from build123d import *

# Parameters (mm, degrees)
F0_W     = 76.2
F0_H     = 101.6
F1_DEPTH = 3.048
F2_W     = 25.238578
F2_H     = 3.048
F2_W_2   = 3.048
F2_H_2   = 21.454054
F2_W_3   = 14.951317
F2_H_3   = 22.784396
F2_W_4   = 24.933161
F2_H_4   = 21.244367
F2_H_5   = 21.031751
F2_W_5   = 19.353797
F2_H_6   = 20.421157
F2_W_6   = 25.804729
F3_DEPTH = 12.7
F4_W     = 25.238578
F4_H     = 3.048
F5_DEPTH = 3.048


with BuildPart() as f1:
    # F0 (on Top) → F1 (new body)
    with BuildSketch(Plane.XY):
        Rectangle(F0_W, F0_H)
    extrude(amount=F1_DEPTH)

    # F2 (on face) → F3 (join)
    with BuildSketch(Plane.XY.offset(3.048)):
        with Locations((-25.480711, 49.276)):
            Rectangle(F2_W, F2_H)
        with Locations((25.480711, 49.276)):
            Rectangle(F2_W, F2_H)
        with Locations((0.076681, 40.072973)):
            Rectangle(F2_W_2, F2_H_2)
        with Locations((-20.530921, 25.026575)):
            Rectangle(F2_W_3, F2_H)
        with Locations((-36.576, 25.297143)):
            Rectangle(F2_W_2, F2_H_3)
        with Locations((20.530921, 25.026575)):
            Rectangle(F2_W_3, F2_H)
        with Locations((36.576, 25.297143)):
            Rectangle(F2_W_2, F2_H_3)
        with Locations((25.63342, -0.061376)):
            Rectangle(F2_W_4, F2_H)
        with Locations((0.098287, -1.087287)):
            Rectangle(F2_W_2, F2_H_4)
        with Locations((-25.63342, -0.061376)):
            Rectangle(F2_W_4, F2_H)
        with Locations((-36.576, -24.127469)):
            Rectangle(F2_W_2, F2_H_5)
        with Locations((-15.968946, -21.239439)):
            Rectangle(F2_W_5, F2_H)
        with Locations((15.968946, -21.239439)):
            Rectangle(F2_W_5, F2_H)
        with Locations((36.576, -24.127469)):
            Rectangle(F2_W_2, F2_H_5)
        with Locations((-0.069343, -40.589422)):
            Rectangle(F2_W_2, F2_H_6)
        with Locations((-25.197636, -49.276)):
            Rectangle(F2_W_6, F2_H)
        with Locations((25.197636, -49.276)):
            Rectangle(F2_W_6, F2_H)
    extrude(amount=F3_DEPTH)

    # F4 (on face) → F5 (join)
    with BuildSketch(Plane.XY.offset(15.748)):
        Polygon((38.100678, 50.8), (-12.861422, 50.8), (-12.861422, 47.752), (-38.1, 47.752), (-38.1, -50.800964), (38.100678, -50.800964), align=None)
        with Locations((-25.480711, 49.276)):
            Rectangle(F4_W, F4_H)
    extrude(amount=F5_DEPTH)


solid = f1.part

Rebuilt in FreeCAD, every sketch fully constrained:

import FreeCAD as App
import Part
import Sketcher
from FreeCAD import Vector
Q = App.Units.Quantity


def add_polygon(sketch, points):
    """Adds a closed chain of lines whose ends are joined by coincident constraints."""
    first, n = sketch.GeometryCount, len(points)
    for a, b in zip(points, points[1:] + points[:1]):
        sketch.addGeometry(Part.LineSegment(App.Vector(*a, 0), App.Vector(*b, 0)), False)
    for i in range(n):
        sketch.addConstraint(Sketcher.Constraint("Coincident", first + i, 2, first + (i + 1) % n, 1))

doc = App.newDocument("Part")
body = doc.addObject("PartDesign::Body", "Body")

# Sketch on XY plane
sketch1 = doc.addObject("Sketcher::SketchObject", "Sketch")
body.addObject(sketch1)
sketch1.AttachmentSupport = (doc.XY_Plane, [""])
sketch1.MapMode = "FlatFace"
add_polygon(sketch1, [(-38, 51), (-38, -51), (38, -51), (38, 51)])  # lines 0-3
sketch1.addConstraint([
    Sketcher.Constraint("Vertical", 0),
    Sketcher.Constraint("Horizontal", 1),
    Sketcher.Constraint("Vertical", 2),
    Sketcher.Constraint("Horizontal", 3),
    Sketcher.Constraint("Symmetric", 0, 2, 2, 2, -1, 1),
    Sketcher.Constraint("DistanceX", 1, 1, 1, 2, Q("3 in")),
    Sketcher.Constraint("DistanceY", 0, 2, 0, 1, Q("4 in")),
])
pad1 = doc.addObject("PartDesign::Pad", "Pad")
body.addObject(pad1)
pad1.Profile = sketch1
pad1.Length = Q("0.12 in")

# Sketch on XY plane
sketch2 = doc.addObject("Sketcher::SketchObject", "Sketch001")
body.addObject(sketch2)
sketch2.AttachmentSupport = (doc.XY_Plane, [""])
sketch2.MapMode = "FlatFace"
sketch2.AttachmentOffset = App.Placement(Vector(0, 0, 0.12 * 25.4), App.Rotation())
add_polygon(sketch2, [(-38.1, 50.8), (-38.1, 47.8), (-12.9, 47.8), (-12.9, 50.8)])  # lines 0-3
add_polygon(sketch2, [(12.9, 50.8), (12.9, 47.8), (38.1, 47.8), (38.1, 50.8)])  # lines 4-7
add_polygon(sketch2, [(-1.4, 50.8), (-1.4, 29.3), (1.6, 29.3), (1.6, 50.8)])  # lines 8-11
add_polygon(sketch2, [(-28, 26.6), (-28, 23.5), (-13.1, 23.5), (-13.1, 26.6)])  # lines 12-15
add_polygon(sketch2, [(-38.1, 36.7), (-38.1, 13.9), (-35.1, 13.9), (-35.1, 36.7)])  # lines 16-19
add_polygon(sketch2, [(13.1, 26.6), (13.1, 23.5), (28, 23.5), (28, 26.6)])  # lines 20-23
add_polygon(sketch2, [(35.1, 36.7), (35.1, 13.9), (38.1, 13.9), (38.1, 36.7)])  # lines 24-27
add_polygon(sketch2, [(13.2, 1.5), (13.2, -1.6), (38.1, -1.6), (38.1, 1.5)])  # lines 28-31
add_polygon(sketch2, [(-1.4, 9.5), (-1.4, -11.7), (1.6, -11.7), (1.6, 9.5)])  # lines 32-35
add_polygon(sketch2, [(-38.1, 1.5), (-38.1, -1.6), (-13.2, -1.6), (-13.2, 1.5)])  # lines 36-39
add_polygon(sketch2, [(-38.1, -13.6), (-38.1, -34.6), (-35.1, -34.6), (-35.1, -13.6)])  # lines 40-43
add_polygon(sketch2, [(-25.6, -19.7), (-25.6, -22.8), (-6.3, -22.8), (-6.3, -19.7)])  # lines 44-47
add_polygon(sketch2, [(6.3, -19.7), (6.3, -22.8), (25.6, -22.8), (25.6, -19.7)])  # lines 48-51
add_polygon(sketch2, [(35.1, -13.6), (35.1, -34.6), (38.1, -34.6), (38.1, -13.6)])  # lines 52-55
add_polygon(sketch2, [(-1.6, -30.4), (-1.6, -50.8), (1.5, -50.8), (1.5, -30.4)])  # lines 56-59
add_polygon(sketch2, [(-38.1, -47.8), (-38.1, -50.8), (-12.3, -50.8), (-12.3, -47.8)])  # lines 60-63
add_polygon(sketch2, [(12.3, -47.8), (12.3, -50.8), (38.1, -50.8), (38.1, -47.8)])  # lines 64-67
sketch2.addConstraint([
    Sketcher.Constraint("Vertical", 0),
    Sketcher.Constraint("Horizontal", 1),
    Sketcher.Constraint("Vertical", 2),
    Sketcher.Constraint("Horizontal", 3),
    Sketcher.Constraint("Vertical", 4),
    Sketcher.Constraint("Horizontal", 5),
    Sketcher.Constraint("Vertical", 6),
    Sketcher.Constraint("Horizontal", 7),
    Sketcher.Constraint("Vertical", 8),
    Sketcher.Constraint("Horizontal", 9),
    Sketcher.Constraint("Vertical", 10),
    Sketcher.Constraint("Horizontal", 11),
    Sketcher.Constraint("Vertical", 12),
    Sketcher.Constraint("Horizontal", 13),
    Sketcher.Constraint("Vertical", 14),
    Sketcher.Constraint("Horizontal", 15),
    Sketcher.Constraint("Vertical", 16),
    Sketcher.Constraint("Horizontal", 17),
    Sketcher.Constraint("Vertical", 18),
    Sketcher.Constraint("Horizontal", 19),
    Sketcher.Constraint("Vertical", 20),
    Sketcher.Constraint("Horizontal", 21),
    Sketcher.Constraint("Vertical", 22),
    Sketcher.Constraint("Horizontal", 23),
    Sketcher.Constraint("Vertical", 24),
    Sketcher.Constraint("Horizontal", 25),
    Sketcher.Constraint("Vertical", 26),
    Sketcher.Constraint("Horizontal", 27),
    Sketcher.Constraint("Vertical", 28),
    Sketcher.Constraint("Horizontal", 29),
    Sketcher.Constraint("Vertical", 30),
    Sketcher.Constraint("Horizontal", 31),
    Sketcher.Constraint("Vertical", 32),
    Sketcher.Constraint("Horizontal", 33),
    Sketcher.Constraint("Vertical", 34),
    Sketcher.Constraint("Horizontal", 35),
    Sketcher.Constraint("Vertical", 36),
    Sketcher.Constraint("Horizontal", 37),
    Sketcher.Constraint("Vertical", 38),
    Sketcher.Constraint("Horizontal", 39),
    Sketcher.Constraint("Vertical", 40),
    Sketcher.Constraint("Horizontal", 41),
    Sketcher.Constraint("Vertical", 42),
    Sketcher.Constraint("Horizontal", 43),
    Sketcher.Constraint("Vertical", 44),
    Sketcher.Constraint("Horizontal", 45),
    Sketcher.Constraint("Vertical", 46),
    Sketcher.Constraint("Horizontal", 47),
    Sketcher.Constraint("Vertical", 48),
    Sketcher.Constraint("Horizontal", 49),
    Sketcher.Constraint("Vertical", 50),
    Sketcher.Constraint("Horizontal", 51),
    Sketcher.Constraint("Vertical", 52),
    Sketcher.Constraint("Horizontal", 53),
    Sketcher.Constraint("Vertical", 54),
    Sketcher.Constraint("Horizontal", 55),
    Sketcher.Constraint("Vertical", 56),
    Sketcher.Constraint("Horizontal", 57),
    Sketcher.Constraint("Vertical", 58),
    Sketcher.Constraint("Horizontal", 59),
    Sketcher.Constraint("Vertical", 60),
    Sketcher.Constraint("Horizontal", 61),
    Sketcher.Constraint("Vertical", 62),
    Sketcher.Constraint("Horizontal", 63),
    Sketcher.Constraint("Vertical", 64),
    Sketcher.Constraint("Horizontal", 65),
    Sketcher.Constraint("Vertical", 66),
    Sketcher.Constraint("Horizontal", 67),
    Sketcher.Constraint("Symmetric", 6, 2, 60, 2, -1, 1),
    Sketcher.Constraint("Symmetric", 3, 2, 65, 2, -1, 1),
    Sketcher.Constraint("Symmetric", 1, 2, 4, 2, -2),
    Sketcher.Constraint("Symmetric", 3, 2, 6, 2, -2),
    Sketcher.Constraint("Symmetric", 13, 2, 20, 2, -2),
    Sketcher.Constraint("Symmetric", 15, 2, 22, 2, -2),
    Sketcher.Constraint("Symmetric", 17, 2, 24, 2, -2),
    Sketcher.Constraint("Symmetric", 19, 2, 26, 2, -2),
    Sketcher.Constraint("Symmetric", 29, 2, 36, 2, -2),
    Sketcher.Constraint("Symmetric", 31, 2, 38, 2, -2),
    Sketcher.Constraint("Symmetric", 45, 2, 48, 2, -2),
    Sketcher.Constraint("Symmetric", 47, 2, 50, 2, -2),
    Sketcher.Constraint("Symmetric", 41, 2, 52, 2, -2),
    Sketcher.Constraint("Symmetric", 43, 2, 54, 2, -2),
    Sketcher.Constraint("Symmetric", 62, 2, 67, 2, -2),
    Sketcher.Constraint("Horizontal", 7, 2, 10, 2),
    Sketcher.Constraint("Horizontal", 57, 2, 60, 2),
    Sketcher.Constraint("Vertical", 3, 2, 16, 2),
    Sketcher.Constraint("Vertical", 26, 2, 29, 2),
    Sketcher.Constraint("Vertical", 39, 2, 40, 2),
    Sketcher.Constraint("Vertical", 18, 2, 41, 2),
    Sketcher.Constraint("Equal", 11, 17),
    Sketcher.Constraint("Equal", 27, 33),
    Sketcher.Constraint("Equal", 55, 57),
    Sketcher.Constraint("Equal", 59, 0),
    Sketcher.Constraint("Equal", 6, 12),
    Sketcher.Constraint("Equal", 22, 28),
    Sketcher.Constraint("Equal", 38, 44),
    Sketcher.Constraint("Equal", 50, 60),
    Sketcher.Constraint("DistanceY", -1, 1, 2, 2, Q("2 in")),
    Sketcher.Constraint("DistanceX", 9, 1, 9, 2, Q("0.12 in")),
    Sketcher.Constraint("DistanceX", 0, 2, -1, 1, Q("1.5 in")),
    Sketcher.Constraint("DistanceX", 1, 1, 1, 2, 25.238578),
    Sketcher.Constraint("DistanceX", 29, 1, 29, 2, 24.933161),
    Sketcher.Constraint("DistanceX", 61, 1, 61, 2, 25.804729),
    Sketcher.Constraint("DistanceY", 40, 2, 40, 1, 21.031751),
    Sketcher.Constraint("DistanceX", 13, 1, 13, 2, 14.951317),
    Sketcher.Constraint("DistanceX", 45, 1, 45, 2, 19.353797),
    Sketcher.Constraint("DistanceY", 8, 2, 8, 1, 21.454054),
    Sketcher.Constraint("DistanceY", 16, 2, 16, 1, 22.784396),
    Sketcher.Constraint("DistanceY", 32, 2, 32, 1, 21.244367),
    Sketcher.Constraint("DistanceY", 56, 2, 56, 1, 20.421157),
    Sketcher.Constraint("DistanceX", 8, 2, -1, 1, 1.447319),
    Sketcher.Constraint("DistanceX", 12, 2, -1, 1, 28.00658),
    Sketcher.Constraint("DistanceY", -1, 1, 18, 2, 36.689341),
    Sketcher.Constraint("DistanceY", 32, 2, -1, 1, 11.709471),
    Sketcher.Constraint("DistanceY", 44, 2, -1, 1, 22.763439),
    Sketcher.Constraint("DistanceY", -1, 1, 12, 2, 23.502575),
    Sketcher.Constraint("DistanceY", 28, 2, -1, 1, 1.585376),
    Sketcher.Constraint("DistanceX", 32, 2, -1, 1, 1.425713),
    Sketcher.Constraint("DistanceY", 40, 2, -1, 1, 34.643344),
    Sketcher.Constraint("DistanceX", 44, 2, -1, 1, 25.645844),
    Sketcher.Constraint("DistanceX", 56, 2, -1, 1, 1.593343),
])
pad2 = doc.addObject("PartDesign::Pad", "Pad001")
body.addObject(pad2)
pad2.Profile = sketch2
pad2.Length = Q("0.5 in")

# Sketch on XY plane
sketch3 = doc.addObject("Sketcher::SketchObject", "Sketch002")
body.addObject(sketch3)
sketch3.AttachmentSupport = (doc.XY_Plane, [""])
sketch3.MapMode = "FlatFace"
sketch3.AttachmentOffset = App.Placement(Vector(0, 0, 0.62 * 25.4), App.Rotation())
add_polygon(sketch3, [(38, 51), (-38, 51), (-38, -51), (38, -51)])  # lines 0-3
sketch3.addConstraint([
    Sketcher.Constraint("Horizontal", 0),
    Sketcher.Constraint("Vertical", 1),
    Sketcher.Constraint("Horizontal", 2),
    Sketcher.Constraint("Vertical", 3),
    Sketcher.Constraint("DistanceY", -1, 1, 0, 2, Q("2 in")),
    Sketcher.Constraint("DistanceX", 0, 2, -1, 1, Q("1.5 in")),
    Sketcher.Constraint("DistanceX", 0, 2, 0, 1, 76.200678),
    Sketcher.Constraint("DistanceY", 1, 2, 1, 1, 101.600964),
])
pad3 = doc.addObject("PartDesign::Pad", "Pad002")
body.addObject(pad3)
pad3.Profile = sketch3
pad3.Length = Q("0.12 in")

doc.recompute()
